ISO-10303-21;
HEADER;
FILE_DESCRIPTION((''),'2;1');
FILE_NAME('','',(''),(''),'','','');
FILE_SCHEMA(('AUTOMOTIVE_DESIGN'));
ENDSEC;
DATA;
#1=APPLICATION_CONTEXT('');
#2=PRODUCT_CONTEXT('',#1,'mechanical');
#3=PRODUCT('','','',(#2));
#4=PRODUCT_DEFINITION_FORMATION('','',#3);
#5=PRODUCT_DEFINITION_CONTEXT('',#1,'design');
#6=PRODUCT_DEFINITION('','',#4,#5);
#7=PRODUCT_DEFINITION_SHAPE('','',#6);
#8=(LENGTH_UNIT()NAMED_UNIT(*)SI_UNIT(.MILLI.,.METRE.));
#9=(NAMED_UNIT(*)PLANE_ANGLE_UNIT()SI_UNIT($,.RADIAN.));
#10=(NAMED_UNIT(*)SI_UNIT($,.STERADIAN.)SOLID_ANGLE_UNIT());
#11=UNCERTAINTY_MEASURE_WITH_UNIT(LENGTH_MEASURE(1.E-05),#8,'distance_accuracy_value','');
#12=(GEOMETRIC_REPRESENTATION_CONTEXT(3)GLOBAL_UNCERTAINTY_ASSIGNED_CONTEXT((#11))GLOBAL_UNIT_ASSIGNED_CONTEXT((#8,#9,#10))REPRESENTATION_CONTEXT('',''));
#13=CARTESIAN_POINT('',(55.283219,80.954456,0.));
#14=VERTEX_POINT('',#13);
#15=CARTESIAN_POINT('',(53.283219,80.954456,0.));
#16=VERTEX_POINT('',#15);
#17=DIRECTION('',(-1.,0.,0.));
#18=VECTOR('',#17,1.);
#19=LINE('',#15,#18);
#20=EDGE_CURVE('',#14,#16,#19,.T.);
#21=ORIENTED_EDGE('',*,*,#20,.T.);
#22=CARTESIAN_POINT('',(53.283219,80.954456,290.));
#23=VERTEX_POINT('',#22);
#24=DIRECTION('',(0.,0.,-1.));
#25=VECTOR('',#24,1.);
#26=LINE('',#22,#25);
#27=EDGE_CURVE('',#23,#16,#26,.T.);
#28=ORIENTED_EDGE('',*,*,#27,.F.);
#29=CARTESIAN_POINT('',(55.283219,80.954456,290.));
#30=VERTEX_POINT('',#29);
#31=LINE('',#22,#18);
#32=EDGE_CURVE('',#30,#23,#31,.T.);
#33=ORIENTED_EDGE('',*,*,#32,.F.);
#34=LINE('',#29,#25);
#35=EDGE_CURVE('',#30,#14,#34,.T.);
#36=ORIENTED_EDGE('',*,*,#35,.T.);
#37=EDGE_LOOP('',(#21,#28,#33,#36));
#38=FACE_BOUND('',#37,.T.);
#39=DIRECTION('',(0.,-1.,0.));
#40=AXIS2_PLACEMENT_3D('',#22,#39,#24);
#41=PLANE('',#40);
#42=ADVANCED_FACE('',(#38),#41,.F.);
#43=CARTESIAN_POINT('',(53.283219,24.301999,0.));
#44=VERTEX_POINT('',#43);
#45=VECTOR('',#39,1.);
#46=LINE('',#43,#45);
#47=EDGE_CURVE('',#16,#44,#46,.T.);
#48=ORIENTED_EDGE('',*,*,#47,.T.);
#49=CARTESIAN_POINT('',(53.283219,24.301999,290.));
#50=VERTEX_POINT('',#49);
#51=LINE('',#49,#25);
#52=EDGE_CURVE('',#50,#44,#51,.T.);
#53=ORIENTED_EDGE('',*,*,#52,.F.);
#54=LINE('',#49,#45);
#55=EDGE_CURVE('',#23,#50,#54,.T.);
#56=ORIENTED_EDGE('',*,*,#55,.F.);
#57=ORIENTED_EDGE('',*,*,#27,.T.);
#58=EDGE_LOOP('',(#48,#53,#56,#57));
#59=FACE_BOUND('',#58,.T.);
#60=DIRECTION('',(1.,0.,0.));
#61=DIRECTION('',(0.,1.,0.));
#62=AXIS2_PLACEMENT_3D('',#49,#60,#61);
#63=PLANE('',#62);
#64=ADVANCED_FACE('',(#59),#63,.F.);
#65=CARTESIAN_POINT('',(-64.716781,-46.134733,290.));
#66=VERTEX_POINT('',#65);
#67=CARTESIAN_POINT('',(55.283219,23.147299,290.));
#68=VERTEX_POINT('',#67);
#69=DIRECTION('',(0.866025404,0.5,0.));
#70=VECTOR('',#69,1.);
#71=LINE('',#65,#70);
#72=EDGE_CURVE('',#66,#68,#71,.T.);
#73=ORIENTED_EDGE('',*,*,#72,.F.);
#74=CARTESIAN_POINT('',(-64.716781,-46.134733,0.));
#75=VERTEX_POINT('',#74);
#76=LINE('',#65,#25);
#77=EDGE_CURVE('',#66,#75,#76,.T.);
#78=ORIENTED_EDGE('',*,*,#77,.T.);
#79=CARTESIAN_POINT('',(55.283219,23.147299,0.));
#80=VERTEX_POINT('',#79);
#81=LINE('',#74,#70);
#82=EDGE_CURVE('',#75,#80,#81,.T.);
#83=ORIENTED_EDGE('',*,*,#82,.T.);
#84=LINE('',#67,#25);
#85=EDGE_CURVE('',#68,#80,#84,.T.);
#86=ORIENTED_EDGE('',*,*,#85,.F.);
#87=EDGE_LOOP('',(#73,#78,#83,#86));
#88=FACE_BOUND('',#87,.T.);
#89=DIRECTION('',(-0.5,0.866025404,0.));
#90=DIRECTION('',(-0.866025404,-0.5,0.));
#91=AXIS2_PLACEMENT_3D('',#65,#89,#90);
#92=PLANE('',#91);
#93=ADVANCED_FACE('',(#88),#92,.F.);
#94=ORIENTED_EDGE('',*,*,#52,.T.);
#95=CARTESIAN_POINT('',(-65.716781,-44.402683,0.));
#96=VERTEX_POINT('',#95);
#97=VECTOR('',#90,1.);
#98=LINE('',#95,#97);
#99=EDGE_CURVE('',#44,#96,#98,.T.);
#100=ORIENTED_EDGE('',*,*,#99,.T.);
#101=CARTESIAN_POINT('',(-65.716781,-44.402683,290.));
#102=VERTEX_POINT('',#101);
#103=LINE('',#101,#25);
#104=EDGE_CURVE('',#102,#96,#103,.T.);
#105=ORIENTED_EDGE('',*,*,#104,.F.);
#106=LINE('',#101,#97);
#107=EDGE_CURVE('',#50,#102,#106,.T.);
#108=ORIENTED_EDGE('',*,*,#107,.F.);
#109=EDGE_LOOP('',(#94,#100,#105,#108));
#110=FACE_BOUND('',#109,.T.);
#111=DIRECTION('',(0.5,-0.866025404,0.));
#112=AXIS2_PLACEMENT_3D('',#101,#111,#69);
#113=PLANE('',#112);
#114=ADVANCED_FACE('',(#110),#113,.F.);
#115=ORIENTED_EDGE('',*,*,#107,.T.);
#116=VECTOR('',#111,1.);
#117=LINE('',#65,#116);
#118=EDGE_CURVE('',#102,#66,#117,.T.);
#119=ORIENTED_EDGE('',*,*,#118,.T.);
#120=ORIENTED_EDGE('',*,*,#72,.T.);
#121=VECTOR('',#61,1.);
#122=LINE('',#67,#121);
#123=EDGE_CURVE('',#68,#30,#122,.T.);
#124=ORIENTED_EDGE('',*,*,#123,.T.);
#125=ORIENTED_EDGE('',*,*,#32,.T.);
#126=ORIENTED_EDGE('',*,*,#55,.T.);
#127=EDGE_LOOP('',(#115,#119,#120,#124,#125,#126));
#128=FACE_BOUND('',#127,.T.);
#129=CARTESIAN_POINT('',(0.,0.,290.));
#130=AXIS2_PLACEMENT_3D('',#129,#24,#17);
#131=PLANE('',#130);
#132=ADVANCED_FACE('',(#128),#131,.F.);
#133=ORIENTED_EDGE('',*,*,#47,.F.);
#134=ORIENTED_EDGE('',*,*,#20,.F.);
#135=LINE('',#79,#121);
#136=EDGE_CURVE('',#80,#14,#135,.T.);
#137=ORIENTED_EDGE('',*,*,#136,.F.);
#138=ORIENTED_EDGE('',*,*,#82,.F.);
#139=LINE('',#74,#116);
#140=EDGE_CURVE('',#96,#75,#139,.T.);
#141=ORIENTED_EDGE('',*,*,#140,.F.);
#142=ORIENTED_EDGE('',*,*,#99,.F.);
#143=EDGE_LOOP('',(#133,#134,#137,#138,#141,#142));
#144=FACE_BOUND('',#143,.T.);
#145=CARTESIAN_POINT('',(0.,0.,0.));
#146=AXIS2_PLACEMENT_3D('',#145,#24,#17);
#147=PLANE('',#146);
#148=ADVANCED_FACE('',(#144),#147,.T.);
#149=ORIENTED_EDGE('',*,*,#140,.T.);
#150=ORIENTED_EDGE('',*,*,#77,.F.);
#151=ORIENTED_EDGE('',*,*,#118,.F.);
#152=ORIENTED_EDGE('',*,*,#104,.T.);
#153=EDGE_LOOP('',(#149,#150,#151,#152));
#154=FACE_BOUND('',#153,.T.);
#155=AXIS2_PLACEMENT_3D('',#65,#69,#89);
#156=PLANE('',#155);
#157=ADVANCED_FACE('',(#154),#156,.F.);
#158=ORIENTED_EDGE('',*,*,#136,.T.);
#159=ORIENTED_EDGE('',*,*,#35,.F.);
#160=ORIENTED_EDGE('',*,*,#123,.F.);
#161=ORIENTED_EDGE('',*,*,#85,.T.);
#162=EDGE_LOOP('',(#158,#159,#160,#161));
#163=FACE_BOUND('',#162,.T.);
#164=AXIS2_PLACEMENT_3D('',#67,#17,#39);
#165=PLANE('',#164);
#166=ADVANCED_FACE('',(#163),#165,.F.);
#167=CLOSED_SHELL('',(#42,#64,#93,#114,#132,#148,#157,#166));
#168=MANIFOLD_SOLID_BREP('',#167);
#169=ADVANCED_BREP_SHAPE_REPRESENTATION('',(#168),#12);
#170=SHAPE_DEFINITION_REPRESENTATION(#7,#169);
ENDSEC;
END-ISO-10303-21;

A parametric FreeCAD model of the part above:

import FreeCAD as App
import Part
import Sketcher
Q = App.Units.Quantity

doc = App.newDocument("Part")
body = doc.addObject("PartDesign::Body", "Body")

sketch1 = body.newObject("Sketcher::SketchObject", "Sketch")
sketch1.AttachmentSupport = (doc.getObject("XY_Plane"), [""])
sketch1.MapMode = "FlatFace"
sketch1.addGeometry([
    Part.LineSegment(App.Vector(53.3, 24.3, 0), App.Vector(-65.7, -44.4, 0)),
    Part.LineSegment(App.Vector(-65.7, -44.4, 0), App.Vector(-64.7, -46.1, 0)),
    Part.LineSegment(App.Vector(-64.7, -46.1, 0), App.Vector(55.3, 23.1, 0)),
    Part.LineSegment(App.Vector(55.3, 23.1, 0), App.Vector(55.3, 81, 0)),
    Part.LineSegment(App.Vector(55.3, 81, 0), App.Vector(53.3, 81, 0)),
    Part.LineSegment(App.Vector(53.3, 81, 0), App.Vector(53.3, 24.3, 0)),
], False)
sketch1.addConstraint([
    Sketcher.Constraint("Coincident", 0, 2, 1, 1),
    Sketcher.Constraint("Coincident", 1, 2, 2, 1),
    Sketcher.Constraint("Coincident", 2, 2, 3, 1),
    Sketcher.Constraint("Coincident", 3, 2, 4, 1),
    Sketcher.Constraint("Coincident", 4, 2, 5, 1),
    Sketcher.Constraint("Coincident", 5, 2, 0, 1),
    Sketcher.Constraint("Vertical", 3),
    Sketcher.Constraint("Horizontal", 4),
    Sketcher.Constraint("Vertical", 5),
    Sketcher.Constraint("Perpendicular", 0, 1),
    Sketcher.Constraint("Perpendicular", 1, 2),
    Sketcher.Constraint("DistanceX", 4, 2, 4, 1, Q("2 mm")),
    Sketcher.Constraint("Angle", 0, Q("-150 deg")),
    Sketcher.Constraint("Distance", 1, Q("2 mm")),
    Sketcher.Constraint("DistanceX", 1, 2, 2, 2, Q("120 mm")),
    Sketcher.Constraint("DistanceY", -1, 1, 5, 2, Q("24.301999 mm")),
    Sketcher.Constraint("DistanceY", 3, 1, 3, 2, Q("57.807157 mm")),
    Sketcher.Constraint("DistanceX", 0, 2, -1, 1, Q("65.716781 mm")),
])
pad1 = body.newObject("PartDesign::Pad", "Pad")
pad1.Profile = sketch1
pad1.Length = 290

doc.recompute()
